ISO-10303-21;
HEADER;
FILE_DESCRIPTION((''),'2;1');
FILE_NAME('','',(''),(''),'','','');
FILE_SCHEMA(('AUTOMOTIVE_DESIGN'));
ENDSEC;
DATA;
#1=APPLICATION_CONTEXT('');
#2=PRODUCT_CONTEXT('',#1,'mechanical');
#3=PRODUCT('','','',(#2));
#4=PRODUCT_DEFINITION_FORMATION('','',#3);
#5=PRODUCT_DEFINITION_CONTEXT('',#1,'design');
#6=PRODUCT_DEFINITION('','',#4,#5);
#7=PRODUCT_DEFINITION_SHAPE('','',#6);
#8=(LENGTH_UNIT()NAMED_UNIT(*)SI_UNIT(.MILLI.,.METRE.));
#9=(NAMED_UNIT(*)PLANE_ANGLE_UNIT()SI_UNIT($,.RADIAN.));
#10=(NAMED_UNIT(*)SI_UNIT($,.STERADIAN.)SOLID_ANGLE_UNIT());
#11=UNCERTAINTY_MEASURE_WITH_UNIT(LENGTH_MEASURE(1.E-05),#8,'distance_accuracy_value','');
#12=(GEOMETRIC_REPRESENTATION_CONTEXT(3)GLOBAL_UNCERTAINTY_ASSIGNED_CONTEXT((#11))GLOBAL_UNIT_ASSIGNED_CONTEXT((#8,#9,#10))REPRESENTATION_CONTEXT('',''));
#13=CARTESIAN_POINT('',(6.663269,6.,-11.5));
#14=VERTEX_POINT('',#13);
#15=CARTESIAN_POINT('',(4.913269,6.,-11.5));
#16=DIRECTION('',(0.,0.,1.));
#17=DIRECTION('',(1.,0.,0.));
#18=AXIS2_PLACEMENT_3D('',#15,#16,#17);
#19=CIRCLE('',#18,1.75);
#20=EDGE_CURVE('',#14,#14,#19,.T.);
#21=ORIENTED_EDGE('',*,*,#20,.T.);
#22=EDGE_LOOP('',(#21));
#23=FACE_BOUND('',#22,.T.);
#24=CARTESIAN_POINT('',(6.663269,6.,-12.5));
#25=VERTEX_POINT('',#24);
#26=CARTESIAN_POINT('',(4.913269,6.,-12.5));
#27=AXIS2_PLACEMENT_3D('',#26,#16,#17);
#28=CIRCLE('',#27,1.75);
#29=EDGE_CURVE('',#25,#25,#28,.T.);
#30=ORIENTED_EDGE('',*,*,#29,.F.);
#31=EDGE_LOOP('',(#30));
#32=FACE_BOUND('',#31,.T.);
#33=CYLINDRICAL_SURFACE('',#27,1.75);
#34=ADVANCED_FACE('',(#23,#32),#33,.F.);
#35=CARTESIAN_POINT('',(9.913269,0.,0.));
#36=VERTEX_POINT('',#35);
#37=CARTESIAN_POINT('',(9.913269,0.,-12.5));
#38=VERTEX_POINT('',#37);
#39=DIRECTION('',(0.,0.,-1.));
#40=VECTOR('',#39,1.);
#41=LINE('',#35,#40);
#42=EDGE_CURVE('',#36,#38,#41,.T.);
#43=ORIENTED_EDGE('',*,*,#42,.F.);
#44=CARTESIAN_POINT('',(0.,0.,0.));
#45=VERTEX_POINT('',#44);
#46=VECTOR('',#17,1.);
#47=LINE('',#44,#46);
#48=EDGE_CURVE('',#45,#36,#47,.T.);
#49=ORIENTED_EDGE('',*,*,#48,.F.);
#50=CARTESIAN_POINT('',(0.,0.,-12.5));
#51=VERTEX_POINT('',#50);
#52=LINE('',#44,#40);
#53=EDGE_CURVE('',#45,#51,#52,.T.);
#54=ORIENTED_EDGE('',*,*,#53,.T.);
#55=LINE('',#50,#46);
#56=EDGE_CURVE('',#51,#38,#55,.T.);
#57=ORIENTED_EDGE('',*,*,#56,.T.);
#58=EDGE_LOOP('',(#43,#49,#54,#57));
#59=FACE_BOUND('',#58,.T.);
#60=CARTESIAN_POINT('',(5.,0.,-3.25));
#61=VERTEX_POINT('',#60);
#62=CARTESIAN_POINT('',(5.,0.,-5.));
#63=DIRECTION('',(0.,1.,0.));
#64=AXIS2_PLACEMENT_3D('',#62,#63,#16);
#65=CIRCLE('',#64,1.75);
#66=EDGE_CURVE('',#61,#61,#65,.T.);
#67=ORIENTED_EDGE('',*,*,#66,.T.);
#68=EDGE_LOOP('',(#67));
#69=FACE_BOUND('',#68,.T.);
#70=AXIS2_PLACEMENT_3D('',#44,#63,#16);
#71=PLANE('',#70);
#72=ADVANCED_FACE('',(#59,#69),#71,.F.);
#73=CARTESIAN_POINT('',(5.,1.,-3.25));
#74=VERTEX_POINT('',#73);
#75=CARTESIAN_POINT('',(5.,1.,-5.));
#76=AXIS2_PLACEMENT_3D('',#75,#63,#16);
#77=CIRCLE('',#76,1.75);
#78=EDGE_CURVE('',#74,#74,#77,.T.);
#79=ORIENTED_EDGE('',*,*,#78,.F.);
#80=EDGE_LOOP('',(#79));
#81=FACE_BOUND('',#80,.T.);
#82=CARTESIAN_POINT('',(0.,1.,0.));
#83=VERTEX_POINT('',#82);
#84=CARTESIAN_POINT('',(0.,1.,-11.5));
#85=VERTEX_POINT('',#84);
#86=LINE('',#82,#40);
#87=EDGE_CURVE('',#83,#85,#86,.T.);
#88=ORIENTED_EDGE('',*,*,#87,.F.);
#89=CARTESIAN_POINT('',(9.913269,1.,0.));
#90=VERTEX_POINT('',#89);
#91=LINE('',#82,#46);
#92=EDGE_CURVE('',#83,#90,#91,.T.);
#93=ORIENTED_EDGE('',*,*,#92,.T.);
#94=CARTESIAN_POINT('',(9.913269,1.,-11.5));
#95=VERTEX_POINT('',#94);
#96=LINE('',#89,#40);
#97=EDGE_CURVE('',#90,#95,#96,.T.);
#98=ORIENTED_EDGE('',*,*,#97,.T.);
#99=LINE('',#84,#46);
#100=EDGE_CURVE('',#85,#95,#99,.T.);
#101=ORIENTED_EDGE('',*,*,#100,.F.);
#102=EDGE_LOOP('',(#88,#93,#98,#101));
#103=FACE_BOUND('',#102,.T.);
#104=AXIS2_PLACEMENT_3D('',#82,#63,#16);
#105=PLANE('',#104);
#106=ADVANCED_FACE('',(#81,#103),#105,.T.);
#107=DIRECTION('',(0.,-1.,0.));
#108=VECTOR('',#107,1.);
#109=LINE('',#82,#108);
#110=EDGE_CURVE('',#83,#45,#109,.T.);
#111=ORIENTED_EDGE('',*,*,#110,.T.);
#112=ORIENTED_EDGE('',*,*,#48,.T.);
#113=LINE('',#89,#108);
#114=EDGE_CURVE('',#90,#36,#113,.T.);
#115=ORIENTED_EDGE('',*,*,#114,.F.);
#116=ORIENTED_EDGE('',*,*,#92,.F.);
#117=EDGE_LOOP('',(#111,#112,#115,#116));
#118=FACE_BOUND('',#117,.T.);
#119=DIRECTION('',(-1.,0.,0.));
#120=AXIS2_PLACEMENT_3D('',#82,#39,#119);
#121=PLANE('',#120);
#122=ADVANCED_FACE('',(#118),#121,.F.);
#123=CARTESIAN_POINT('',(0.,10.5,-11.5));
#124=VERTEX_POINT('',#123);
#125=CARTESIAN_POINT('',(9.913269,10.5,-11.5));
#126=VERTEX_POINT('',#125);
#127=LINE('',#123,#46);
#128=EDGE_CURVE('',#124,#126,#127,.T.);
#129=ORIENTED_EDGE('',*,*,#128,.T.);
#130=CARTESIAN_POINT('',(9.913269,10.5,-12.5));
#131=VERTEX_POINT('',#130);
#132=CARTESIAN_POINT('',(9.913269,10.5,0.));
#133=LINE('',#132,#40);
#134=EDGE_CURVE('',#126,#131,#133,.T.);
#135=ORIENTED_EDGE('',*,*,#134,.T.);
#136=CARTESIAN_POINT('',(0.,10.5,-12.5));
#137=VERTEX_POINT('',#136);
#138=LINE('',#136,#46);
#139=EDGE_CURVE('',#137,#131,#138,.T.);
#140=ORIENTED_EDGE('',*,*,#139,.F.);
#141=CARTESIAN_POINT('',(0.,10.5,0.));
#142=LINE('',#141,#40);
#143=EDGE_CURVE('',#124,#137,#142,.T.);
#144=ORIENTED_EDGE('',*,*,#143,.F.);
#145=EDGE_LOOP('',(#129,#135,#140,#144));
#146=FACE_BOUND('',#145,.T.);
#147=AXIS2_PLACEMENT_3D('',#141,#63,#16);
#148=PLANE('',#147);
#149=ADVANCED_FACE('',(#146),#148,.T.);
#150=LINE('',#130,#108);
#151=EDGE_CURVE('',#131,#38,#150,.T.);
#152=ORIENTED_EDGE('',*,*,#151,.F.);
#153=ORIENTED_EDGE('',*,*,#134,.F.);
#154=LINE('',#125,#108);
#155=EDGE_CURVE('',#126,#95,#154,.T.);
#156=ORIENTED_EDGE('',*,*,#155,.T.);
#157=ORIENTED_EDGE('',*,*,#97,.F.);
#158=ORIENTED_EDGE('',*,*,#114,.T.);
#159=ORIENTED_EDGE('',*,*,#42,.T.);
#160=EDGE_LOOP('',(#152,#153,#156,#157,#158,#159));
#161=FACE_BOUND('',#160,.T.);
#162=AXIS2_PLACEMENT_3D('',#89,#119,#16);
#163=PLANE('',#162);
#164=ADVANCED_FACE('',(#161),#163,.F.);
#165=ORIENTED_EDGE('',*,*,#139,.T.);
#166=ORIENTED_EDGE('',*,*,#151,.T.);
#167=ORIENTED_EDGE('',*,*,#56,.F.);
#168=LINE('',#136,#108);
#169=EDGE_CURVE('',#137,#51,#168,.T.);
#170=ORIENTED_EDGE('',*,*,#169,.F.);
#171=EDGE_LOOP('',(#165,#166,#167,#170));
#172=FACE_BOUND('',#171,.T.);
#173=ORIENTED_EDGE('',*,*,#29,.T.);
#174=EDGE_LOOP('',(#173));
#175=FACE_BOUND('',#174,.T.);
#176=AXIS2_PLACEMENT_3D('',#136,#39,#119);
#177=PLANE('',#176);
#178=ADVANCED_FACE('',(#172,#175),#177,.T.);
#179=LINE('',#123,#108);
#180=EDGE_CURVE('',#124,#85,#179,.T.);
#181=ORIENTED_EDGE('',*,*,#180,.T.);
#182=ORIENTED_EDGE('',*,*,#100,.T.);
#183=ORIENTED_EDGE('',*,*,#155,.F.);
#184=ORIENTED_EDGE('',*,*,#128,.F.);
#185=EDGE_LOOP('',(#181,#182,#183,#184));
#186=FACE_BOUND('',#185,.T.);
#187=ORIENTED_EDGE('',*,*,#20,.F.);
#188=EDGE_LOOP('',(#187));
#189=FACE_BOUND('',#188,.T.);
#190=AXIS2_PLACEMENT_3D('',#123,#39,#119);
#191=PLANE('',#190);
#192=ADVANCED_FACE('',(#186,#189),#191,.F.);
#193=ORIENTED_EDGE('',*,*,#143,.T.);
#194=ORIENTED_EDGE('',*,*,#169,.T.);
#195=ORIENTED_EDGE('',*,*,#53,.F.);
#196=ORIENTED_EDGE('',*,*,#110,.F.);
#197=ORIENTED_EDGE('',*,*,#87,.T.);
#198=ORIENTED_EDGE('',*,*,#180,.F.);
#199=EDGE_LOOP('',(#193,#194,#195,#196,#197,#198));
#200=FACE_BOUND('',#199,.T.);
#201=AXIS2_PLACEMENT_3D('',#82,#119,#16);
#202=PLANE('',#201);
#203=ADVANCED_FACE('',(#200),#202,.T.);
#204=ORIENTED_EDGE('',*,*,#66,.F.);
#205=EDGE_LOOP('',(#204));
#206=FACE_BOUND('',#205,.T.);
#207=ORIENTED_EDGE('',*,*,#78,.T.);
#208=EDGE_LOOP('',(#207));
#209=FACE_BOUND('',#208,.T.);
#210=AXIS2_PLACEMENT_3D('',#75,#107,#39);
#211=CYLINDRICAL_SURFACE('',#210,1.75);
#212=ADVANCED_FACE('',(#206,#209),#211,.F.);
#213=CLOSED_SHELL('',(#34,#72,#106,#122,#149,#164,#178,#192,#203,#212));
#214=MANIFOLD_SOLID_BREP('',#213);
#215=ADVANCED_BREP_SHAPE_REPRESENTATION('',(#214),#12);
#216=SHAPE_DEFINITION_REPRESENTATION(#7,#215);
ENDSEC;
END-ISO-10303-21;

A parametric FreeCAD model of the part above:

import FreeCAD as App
import Part
import Sketcher

V = App.Vector

doc = App.newDocument("Part")
body = doc.addObject("PartDesign::Body", "Body")

sketch1 = doc.addObject("Sketcher::SketchObject", "Sketch")
body.addObject(sketch1)
sketch1.AttachmentSupport = (doc.XZ_Plane, [""])
sketch1.MapMode = "FlatFace"
sketch1.addGeometry([
    Part.LineSegment(V(0, -11.5, 0), V(0, 0, 0)),
    Part.LineSegment(V(0, 0, 0), V(9.9, 0, 0)),
    Part.LineSegment(V(9.9, 0, 0), V(9.9, -11.5, 0)),
    Part.LineSegment(V(9.9, -11.5, 0), V(0, -11.5, 0)),
    Part.Circle(V(5, -5, 0), V(0, 0, 1), 1.8),
], False)
sketch1.addConstraint([
    Sketcher.Constraint("Coincident", 0, 2, 1, 1),
    Sketcher.Constraint("Coincident", 1, 2, 2, 1),
    Sketcher.Constraint("Coincident", 2, 2, 3, 1),
    Sketcher.Constraint("Coincident", 3, 2, 0, 1),
    Sketcher.Constraint("Vertical", 0),
    Sketcher.Constraint("Horizontal", 1),
    Sketcher.Constraint("Vertical", 2),
    Sketcher.Constraint("Horizontal", 3),
    Sketcher.Constraint("Coincident", 0, 2, -1, 1),
    Sketcher.Constraint("Diameter", 4, 3.5),
    Sketcher.Constraint("DistanceY", 0, 1, 0, 2, 11.5),
    Sketcher.Constraint("DistanceX", -1, 1, 4, 3, 5.0),
    Sketcher.Constraint("DistanceY", 4, 3, -1, 1, 5.0),
    Sketcher.Constraint("DistanceX", 1, 1, 1, 2, 9.913269),
])
pad1 = doc.addObject("PartDesign::Pad", "Pad")
body.addObject(pad1)
pad1.Profile = sketch1
pad1.Length = 1
pad1.Reversed = True

sketch2 = doc.addObject("Sketcher::SketchObject", "Sketch001")
body.addObject(sketch2)
sketch2.AttachmentSupport = (doc.XZ_Plane, [""])
sketch2.MapMode = "FlatFace"
sketch2.addGeometry([
    Part.LineSegment(V(0, -12.5, 0), V(0, -11.5, 0)),
    Part.LineSegment(V(0, -11.5, 0), V(9.9, -11.5, 0)),
    Part.LineSegment(V(9.9, -11.5, 0), V(9.9, -12.5, 0)),
    Part.LineSegment(V(9.9, -12.5, 0), V(0, -12.5, 0)),
], False)
sketch2.addConstraint([
    Sketcher.Constraint("Coincident", 0, 2, 1, 1),
    Sketcher.Constraint("Coincident", 1, 2, 2, 1),
    Sketcher.Constraint("Coincident", 2, 2, 3, 1),
    Sketcher.Constraint("Coincident", 3, 2, 0, 1),
    Sketcher.Constraint("Vertical", 0),
    Sketcher.Constraint("Horizontal", 1),
    Sketcher.Constraint("Vertical", 2),
    Sketcher.Constraint("Horizontal", 3),
    Sketcher.Constraint("PointOnObject", 0, 2, -2),
    Sketcher.Constraint("DistanceY", 0, 1, 0, 2, 1.0),
    Sketcher.Constraint("DistanceY", 0, 2, -1, 1, 11.5),
    Sketcher.Constraint("DistanceX", 1, 1, 1, 2, 9.913269),
])
pad2 = doc.addObject("PartDesign::Pad", "Pad001")
body.addObject(pad2)
pad2.Profile = sketch2
pad2.Length = 10.5
pad2.Reversed = True

sketch3 = doc.addObject("Sketcher::SketchObject", "Sketch002")
body.addObject(sketch3)
sketch3.AttachmentSupport = (doc.XY_Plane, [""])
sketch3.MapMode = "FlatFace"
sketch3.AttachmentOffset = App.Placement(V(0, 0, -11.5), App.Rotation())
sketch3.addGeometry(Part.Circle(V(4.9, 6, 0), V(0, 0, 1), 1.8), False)
sketch3.addConstraint([
    Sketcher.Constraint("Diameter", 0, 3.5),
    Sketcher.Constraint("DistanceY", -1, 1, 0, 3, 6.0),
    Sketcher.Constraint("DistanceX", -1, 1, 0, 3, 4.913269),
])
pocket1 = doc.addObject("PartDesign::Pocket", "Pocket")
body.addObject(pocket1)
pocket1.Profile = sketch3
pocket1.Length = 1

doc.recompute()
